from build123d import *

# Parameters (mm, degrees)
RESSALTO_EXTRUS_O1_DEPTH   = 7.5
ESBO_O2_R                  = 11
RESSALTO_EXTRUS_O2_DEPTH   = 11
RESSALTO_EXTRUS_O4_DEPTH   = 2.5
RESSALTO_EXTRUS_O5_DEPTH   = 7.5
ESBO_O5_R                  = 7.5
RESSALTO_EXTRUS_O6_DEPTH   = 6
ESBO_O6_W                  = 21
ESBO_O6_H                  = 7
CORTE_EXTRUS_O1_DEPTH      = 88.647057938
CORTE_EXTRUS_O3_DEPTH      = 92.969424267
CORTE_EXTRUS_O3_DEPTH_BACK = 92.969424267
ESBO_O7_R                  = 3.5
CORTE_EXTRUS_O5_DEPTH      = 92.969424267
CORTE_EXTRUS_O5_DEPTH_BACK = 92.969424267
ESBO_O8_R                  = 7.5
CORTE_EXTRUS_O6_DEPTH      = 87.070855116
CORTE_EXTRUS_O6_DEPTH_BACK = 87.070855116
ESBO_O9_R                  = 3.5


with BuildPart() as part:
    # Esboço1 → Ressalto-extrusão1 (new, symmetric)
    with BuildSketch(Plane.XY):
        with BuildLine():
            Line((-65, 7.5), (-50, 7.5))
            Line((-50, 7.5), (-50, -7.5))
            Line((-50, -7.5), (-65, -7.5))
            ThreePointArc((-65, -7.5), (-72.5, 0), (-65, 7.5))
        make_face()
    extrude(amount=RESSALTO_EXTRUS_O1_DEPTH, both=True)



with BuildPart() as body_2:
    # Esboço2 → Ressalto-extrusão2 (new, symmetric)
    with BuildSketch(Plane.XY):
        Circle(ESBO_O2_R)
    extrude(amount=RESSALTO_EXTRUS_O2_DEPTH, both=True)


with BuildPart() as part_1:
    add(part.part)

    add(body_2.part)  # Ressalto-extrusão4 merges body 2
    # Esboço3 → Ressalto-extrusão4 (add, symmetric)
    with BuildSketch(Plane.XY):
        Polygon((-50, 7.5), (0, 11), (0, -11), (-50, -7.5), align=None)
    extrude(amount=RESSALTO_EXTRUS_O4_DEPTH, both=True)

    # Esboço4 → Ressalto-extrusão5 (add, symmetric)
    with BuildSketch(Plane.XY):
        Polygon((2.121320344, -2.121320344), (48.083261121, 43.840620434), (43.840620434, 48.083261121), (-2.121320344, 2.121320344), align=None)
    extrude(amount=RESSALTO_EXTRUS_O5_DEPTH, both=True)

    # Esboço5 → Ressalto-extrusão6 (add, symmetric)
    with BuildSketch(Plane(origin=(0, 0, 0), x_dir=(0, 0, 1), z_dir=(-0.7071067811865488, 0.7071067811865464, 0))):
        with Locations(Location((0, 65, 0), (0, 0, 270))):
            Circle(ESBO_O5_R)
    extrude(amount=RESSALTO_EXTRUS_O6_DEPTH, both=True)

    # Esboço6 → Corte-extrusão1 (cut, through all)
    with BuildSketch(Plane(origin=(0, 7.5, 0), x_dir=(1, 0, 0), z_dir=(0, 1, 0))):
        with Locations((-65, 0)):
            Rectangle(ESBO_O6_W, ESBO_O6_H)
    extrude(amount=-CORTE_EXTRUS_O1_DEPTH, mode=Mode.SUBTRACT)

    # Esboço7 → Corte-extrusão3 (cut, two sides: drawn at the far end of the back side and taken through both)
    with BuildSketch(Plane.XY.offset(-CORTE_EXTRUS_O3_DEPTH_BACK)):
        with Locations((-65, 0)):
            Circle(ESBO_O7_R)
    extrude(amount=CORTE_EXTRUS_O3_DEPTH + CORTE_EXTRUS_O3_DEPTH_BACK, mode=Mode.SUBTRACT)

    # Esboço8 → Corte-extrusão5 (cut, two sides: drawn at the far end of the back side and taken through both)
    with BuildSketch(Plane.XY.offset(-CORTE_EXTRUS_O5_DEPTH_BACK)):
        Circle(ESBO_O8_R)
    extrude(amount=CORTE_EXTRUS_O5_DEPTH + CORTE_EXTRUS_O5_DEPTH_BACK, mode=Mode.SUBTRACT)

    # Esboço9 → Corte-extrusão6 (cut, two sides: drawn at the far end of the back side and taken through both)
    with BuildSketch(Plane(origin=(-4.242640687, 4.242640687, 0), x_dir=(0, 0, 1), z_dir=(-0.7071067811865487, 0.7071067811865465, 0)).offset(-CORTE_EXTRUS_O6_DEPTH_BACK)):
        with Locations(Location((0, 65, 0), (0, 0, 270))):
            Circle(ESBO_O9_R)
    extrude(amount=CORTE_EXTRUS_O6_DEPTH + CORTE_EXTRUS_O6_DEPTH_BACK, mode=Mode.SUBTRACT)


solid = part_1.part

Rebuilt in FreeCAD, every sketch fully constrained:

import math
import FreeCAD as App
import Part
import Sketcher
Q = App.Units.Quantity


def add_polygon(sketch, points):
    """Adds a closed chain of lines whose ends are joined by coincident constraints."""
    first, n = sketch.GeometryCount, len(points)
    for a, b in zip(points, points[1:] + points[:1]):
        sketch.addGeometry(Part.LineSegment(App.Vector(*a, 0), App.Vector(*b, 0)), False)
    for i in range(n):
        sketch.addConstraint(Sketcher.Constraint("Coincident", first + i, 2, first + (i + 1) % n, 1))

doc = App.newDocument("Part")
body = doc.addObject("PartDesign::Body", "Body")

# Sketch on XY plane
sketch1 = doc.addObject("Sketcher::SketchObject", "Sketch")
body.addObject(sketch1)
sketch1.AttachmentSupport = (doc.XY_Plane, [""])
sketch1.MapMode = "FlatFace"
sketch1.addGeometry([
    Part.LineSegment(App.Vector(-50, 7.5, 0), App.Vector(-65, 7.5, 0)),
    Part.ArcOfCircle(Part.Circle(App.Vector(-65, 0, 0), App.Vector(0, 0, 1), 7.5), math.radians(90), math.radians(270)),
    Part.LineSegment(App.Vector(-65, -7.5, 0), App.Vector(-50, -7.5, 0)),
    Part.LineSegment(App.Vector(-50, -7.5, 0), App.Vector(-50, 7.5, 0)),
], False)
sketch1.addConstraint([
    Sketcher.Constraint("Tangent", 0, 2, 1, 1),
    Sketcher.Constraint("Tangent", 1, 2, 2, 1),
    Sketcher.Constraint("Coincident", 2, 2, 3, 1),
    Sketcher.Constraint("Coincident", 3, 2, 0, 1),
    Sketcher.Constraint("Horizontal", 0),
    Sketcher.Constraint("Horizontal", 2),
    Sketcher.Constraint("Vertical", 3),
    Sketcher.Constraint("PointOnObject", 1, 3, -1),
    Sketcher.Constraint("Equal", 2, 3),
    Sketcher.Constraint("Radius", 1, Q("7.5 mm")),
    Sketcher.Constraint("DistanceX", 1, 3, -1, 1, Q("65 mm")),
])
pad1 = doc.addObject("PartDesign::Pad", "Pad")
body.addObject(pad1)
pad1.Profile = sketch1
pad1.Length = 15
pad1.Midplane = True
body2 = doc.addObject("PartDesign::Body", "Body001")

# Sketch on XY plane
sketch2 = doc.addObject("Sketcher::SketchObject", "Sketch001")
body2.addObject(sketch2)
sketch2.AttachmentSupport = (doc.getObject("XY_Plane001"), [""])
sketch2.MapMode = "FlatFace"
sketch2.addGeometry(Part.Circle(App.Vector(0, 0, 0), App.Vector(0, 0, 1), 11), False)
sketch2.addConstraint([
    Sketcher.Constraint("Coincident", 0, 3, -1, 1),
    Sketcher.Constraint("Diameter", 0, Q("22 mm")),
])
pad2 = doc.addObject("PartDesign::Pad", "Pad001")
body2.addObject(pad2)
pad2.Profile = sketch2
pad2.Length = 22
pad2.Midplane = True
body.AllowCompound = True
doc.recompute()

boolean = doc.addObject("PartDesign::Boolean", "Boolean")
body.addObject(boolean)
boolean.Type = "Fuse"
boolean.addObjects([body2])

# Sketch on XY plane
sketch3 = doc.addObject("Sketcher::SketchObject", "Sketch002")
body.addObject(sketch3)
sketch3.AttachmentSupport = (doc.XY_Plane, [""])
sketch3.MapMode = "FlatFace"
add_polygon(sketch3, [(0, 11), (-50, 7.5), (-50, -7.5), (0, -11)])  # lines 0-3
sketch3.addConstraint([
    Sketcher.Constraint("Vertical", 1),
    Sketcher.Constraint("Vertical", 3),
    Sketcher.Constraint("Symmetric", 2, 2, 3, 2, -1, 1),
    Sketcher.Constraint("Equal", 0, 2),
    Sketcher.Constraint("DistanceY", 1, 2, 1, 1, Q("15 mm")),
    Sketcher.Constraint("DistanceY", 3, 1, 3, 2, Q("22 mm")),
    Sketcher.Constraint("DistanceX", 0, 2, -1, 1, Q("50 mm")),
])
pad3 = doc.addObject("PartDesign::Pad", "Pad002")
body.addObject(pad3)
pad3.Profile = sketch3
pad3.Length = 5
pad3.Midplane = True

# Sketch on XY plane
sketch4 = doc.addObject("Sketcher::SketchObject", "Sketch003")
body.addObject(sketch4)
sketch4.AttachmentSupport = (doc.XY_Plane, [""])
sketch4.MapMode = "FlatFace"
add_polygon(sketch4, [(2.12132, -2.12132), (48.083261, 43.84062), (43.84062, 48.083261), (-2.12132, 2.12132)])  # lines 0-3
sketch4.addConstraint([
    Sketcher.Constraint("Symmetric", 2, 2, 3, 2, -1, 1),
    Sketcher.Constraint("Perpendicular", 0, 1),
    Sketcher.Constraint("Perpendicular", 1, 2),
    Sketcher.Constraint("Perpendicular", 2, 3),
    Sketcher.Constraint("Angle", 0, Q("45 deg")),
    Sketcher.Constraint("Distance", 0, Q("65 mm")),
    Sketcher.Constraint("Distance", 1, Q("6 mm")),
])
pad4 = doc.addObject("PartDesign::Pad", "Pad003")
body.addObject(pad4)
pad4.Profile = sketch4
pad4.Length = 15
pad4.Midplane = True

# Sketch on an angled plane
sketch5 = doc.addObject("Sketcher::SketchObject", "Sketch004")
body.addObject(sketch5)
sketch5.Placement = App.Placement(App.Vector(0, 0, 0), App.Rotation(App.Vector(0, 0, 1), App.Vector(0.707106781, 0.707106781, 0), App.Vector(-0.707106781, 0.707106781, 0), "ZXY"))
sketch5.addGeometry(Part.Circle(App.Vector(0, 65, 0), App.Vector(0, 0, 1), 7.5), False)
sketch5.addConstraint([
    Sketcher.Constraint("PointOnObject", 0, 3, -2),
    Sketcher.Constraint("Diameter", 0, Q("15 mm")),
    Sketcher.Constraint("DistanceY", -1, 1, 0, 3, Q("65 mm")),
])
pad5 = doc.addObject("PartDesign::Pad", "Pad004")
body.addObject(pad5)
pad5.Profile = sketch5
pad5.Length = 12
pad5.Midplane = True

# Sketch on XZ plane
sketch6 = doc.addObject("Sketcher::SketchObject", "Sketch005")
body.addObject(sketch6)
sketch6.AttachmentSupport = (doc.XZ_Plane, [""])
sketch6.MapMode = "FlatFace"
sketch6.AttachmentOffset = App.Placement(App.Vector(0, 0, -7.5), App.Rotation())
add_polygon(sketch6, [(-75.5, -3.5), (-75.5, 3.5), (-54.5, 3.5), (-54.5, -3.5)])  # lines 0-3
sketch6.addConstraint([
    Sketcher.Constraint("Vertical", 0),
    Sketcher.Constraint("Horizontal", 1),
    Sketcher.Constraint("Vertical", 2),
    Sketcher.Constraint("Horizontal", 3),
    Sketcher.Constraint("DistanceX", 1, 1, 1, 2, Q("21 mm")),
    Sketcher.Constraint("DistanceY", 0, 1, 0, 2, Q("7 mm")),
    Sketcher.Constraint("DistanceX", 0, 2, -1, 1, Q("75.5 mm")),
    Sketcher.Constraint("DistanceY", -1, 1, 0, 2, Q("3.5 mm")),
])
pocket1 = doc.addObject("PartDesign::Pocket", "Pocket")
body.addObject(pocket1)
pocket1.Profile = sketch6
pocket1.Type = "ThroughAll"
pocket1.Reversed = True

# Sketch on XY plane
sketch7 = doc.addObject("Sketcher::SketchObject", "Sketch006")
body.addObject(sketch7)
sketch7.AttachmentSupport = (doc.XY_Plane, [""])
sketch7.MapMode = "FlatFace"
sketch7.addGeometry(Part.Circle(App.Vector(-65, 0, 0), App.Vector(0, 0, 1), 3.5), False)
sketch7.addConstraint([
    Sketcher.Constraint("PointOnObject", 0, 3, -1),
    Sketcher.Constraint("Diameter", 0, Q("7 mm")),
    Sketcher.Constraint("DistanceX", 0, 3, -1, 1, Q("65 mm")),
])
pocket2 = doc.addObject("PartDesign::Pocket", "Pocket001")
body.addObject(pocket2)
pocket2.Profile = sketch7
pocket2.Type = "ThroughAll"
pocket2.Midplane = True

# Sketch on XY plane
sketch8 = doc.addObject("Sketcher::SketchObject", "Sketch007")
body.addObject(sketch8)
sketch8.AttachmentSupport = (doc.XY_Plane, [""])
sketch8.MapMode = "FlatFace"
sketch8.addGeometry(Part.Circle(App.Vector(0, 0, 0), App.Vector(0, 0, 1), 7.5), False)
sketch8.addConstraint([
    Sketcher.Constraint("Coincident", 0, 3, -1, 1),
    Sketcher.Constraint("Diameter", 0, Q("15 mm")),
])
pocket3 = doc.addObject("PartDesign::Pocket", "Pocket002")
body.addObject(pocket3)
pocket3.Profile = sketch8
pocket3.Type = "ThroughAll"
pocket3.Midplane = True

# Sketch on an angled plane
sketch9 = doc.addObject("Sketcher::SketchObject", "Sketch008")
body.addObject(sketch9)
sketch9.Placement = App.Placement(App.Vector(-4.242641, 4.242641, 0), App.Rotation(App.Vector(0, 0, 1), App.Vector(0.707106781, 0.707106781, 0), App.Vector(-0.707106781, 0.707106781, 0), "ZXY"))
sketch9.addGeometry(Part.Circle(App.Vector(0, 65, 0), App.Vector(0, 0, 1), 3.5), False)
sketch9.addConstraint([
    Sketcher.Constraint("PointOnObject", 0, 3, -2),
    Sketcher.Constraint("Diameter", 0, Q("7 mm")),
    Sketcher.Constraint("DistanceY", -1, 1, 0, 3, Q("65 mm")),
])
pocket4 = doc.addObject("PartDesign::Pocket", "Pocket003")
body.addObject(pocket4)
pocket4.Profile = sketch9
pocket4.Type = "ThroughAll"
pocket4.Midplane = True

doc.recompute()
